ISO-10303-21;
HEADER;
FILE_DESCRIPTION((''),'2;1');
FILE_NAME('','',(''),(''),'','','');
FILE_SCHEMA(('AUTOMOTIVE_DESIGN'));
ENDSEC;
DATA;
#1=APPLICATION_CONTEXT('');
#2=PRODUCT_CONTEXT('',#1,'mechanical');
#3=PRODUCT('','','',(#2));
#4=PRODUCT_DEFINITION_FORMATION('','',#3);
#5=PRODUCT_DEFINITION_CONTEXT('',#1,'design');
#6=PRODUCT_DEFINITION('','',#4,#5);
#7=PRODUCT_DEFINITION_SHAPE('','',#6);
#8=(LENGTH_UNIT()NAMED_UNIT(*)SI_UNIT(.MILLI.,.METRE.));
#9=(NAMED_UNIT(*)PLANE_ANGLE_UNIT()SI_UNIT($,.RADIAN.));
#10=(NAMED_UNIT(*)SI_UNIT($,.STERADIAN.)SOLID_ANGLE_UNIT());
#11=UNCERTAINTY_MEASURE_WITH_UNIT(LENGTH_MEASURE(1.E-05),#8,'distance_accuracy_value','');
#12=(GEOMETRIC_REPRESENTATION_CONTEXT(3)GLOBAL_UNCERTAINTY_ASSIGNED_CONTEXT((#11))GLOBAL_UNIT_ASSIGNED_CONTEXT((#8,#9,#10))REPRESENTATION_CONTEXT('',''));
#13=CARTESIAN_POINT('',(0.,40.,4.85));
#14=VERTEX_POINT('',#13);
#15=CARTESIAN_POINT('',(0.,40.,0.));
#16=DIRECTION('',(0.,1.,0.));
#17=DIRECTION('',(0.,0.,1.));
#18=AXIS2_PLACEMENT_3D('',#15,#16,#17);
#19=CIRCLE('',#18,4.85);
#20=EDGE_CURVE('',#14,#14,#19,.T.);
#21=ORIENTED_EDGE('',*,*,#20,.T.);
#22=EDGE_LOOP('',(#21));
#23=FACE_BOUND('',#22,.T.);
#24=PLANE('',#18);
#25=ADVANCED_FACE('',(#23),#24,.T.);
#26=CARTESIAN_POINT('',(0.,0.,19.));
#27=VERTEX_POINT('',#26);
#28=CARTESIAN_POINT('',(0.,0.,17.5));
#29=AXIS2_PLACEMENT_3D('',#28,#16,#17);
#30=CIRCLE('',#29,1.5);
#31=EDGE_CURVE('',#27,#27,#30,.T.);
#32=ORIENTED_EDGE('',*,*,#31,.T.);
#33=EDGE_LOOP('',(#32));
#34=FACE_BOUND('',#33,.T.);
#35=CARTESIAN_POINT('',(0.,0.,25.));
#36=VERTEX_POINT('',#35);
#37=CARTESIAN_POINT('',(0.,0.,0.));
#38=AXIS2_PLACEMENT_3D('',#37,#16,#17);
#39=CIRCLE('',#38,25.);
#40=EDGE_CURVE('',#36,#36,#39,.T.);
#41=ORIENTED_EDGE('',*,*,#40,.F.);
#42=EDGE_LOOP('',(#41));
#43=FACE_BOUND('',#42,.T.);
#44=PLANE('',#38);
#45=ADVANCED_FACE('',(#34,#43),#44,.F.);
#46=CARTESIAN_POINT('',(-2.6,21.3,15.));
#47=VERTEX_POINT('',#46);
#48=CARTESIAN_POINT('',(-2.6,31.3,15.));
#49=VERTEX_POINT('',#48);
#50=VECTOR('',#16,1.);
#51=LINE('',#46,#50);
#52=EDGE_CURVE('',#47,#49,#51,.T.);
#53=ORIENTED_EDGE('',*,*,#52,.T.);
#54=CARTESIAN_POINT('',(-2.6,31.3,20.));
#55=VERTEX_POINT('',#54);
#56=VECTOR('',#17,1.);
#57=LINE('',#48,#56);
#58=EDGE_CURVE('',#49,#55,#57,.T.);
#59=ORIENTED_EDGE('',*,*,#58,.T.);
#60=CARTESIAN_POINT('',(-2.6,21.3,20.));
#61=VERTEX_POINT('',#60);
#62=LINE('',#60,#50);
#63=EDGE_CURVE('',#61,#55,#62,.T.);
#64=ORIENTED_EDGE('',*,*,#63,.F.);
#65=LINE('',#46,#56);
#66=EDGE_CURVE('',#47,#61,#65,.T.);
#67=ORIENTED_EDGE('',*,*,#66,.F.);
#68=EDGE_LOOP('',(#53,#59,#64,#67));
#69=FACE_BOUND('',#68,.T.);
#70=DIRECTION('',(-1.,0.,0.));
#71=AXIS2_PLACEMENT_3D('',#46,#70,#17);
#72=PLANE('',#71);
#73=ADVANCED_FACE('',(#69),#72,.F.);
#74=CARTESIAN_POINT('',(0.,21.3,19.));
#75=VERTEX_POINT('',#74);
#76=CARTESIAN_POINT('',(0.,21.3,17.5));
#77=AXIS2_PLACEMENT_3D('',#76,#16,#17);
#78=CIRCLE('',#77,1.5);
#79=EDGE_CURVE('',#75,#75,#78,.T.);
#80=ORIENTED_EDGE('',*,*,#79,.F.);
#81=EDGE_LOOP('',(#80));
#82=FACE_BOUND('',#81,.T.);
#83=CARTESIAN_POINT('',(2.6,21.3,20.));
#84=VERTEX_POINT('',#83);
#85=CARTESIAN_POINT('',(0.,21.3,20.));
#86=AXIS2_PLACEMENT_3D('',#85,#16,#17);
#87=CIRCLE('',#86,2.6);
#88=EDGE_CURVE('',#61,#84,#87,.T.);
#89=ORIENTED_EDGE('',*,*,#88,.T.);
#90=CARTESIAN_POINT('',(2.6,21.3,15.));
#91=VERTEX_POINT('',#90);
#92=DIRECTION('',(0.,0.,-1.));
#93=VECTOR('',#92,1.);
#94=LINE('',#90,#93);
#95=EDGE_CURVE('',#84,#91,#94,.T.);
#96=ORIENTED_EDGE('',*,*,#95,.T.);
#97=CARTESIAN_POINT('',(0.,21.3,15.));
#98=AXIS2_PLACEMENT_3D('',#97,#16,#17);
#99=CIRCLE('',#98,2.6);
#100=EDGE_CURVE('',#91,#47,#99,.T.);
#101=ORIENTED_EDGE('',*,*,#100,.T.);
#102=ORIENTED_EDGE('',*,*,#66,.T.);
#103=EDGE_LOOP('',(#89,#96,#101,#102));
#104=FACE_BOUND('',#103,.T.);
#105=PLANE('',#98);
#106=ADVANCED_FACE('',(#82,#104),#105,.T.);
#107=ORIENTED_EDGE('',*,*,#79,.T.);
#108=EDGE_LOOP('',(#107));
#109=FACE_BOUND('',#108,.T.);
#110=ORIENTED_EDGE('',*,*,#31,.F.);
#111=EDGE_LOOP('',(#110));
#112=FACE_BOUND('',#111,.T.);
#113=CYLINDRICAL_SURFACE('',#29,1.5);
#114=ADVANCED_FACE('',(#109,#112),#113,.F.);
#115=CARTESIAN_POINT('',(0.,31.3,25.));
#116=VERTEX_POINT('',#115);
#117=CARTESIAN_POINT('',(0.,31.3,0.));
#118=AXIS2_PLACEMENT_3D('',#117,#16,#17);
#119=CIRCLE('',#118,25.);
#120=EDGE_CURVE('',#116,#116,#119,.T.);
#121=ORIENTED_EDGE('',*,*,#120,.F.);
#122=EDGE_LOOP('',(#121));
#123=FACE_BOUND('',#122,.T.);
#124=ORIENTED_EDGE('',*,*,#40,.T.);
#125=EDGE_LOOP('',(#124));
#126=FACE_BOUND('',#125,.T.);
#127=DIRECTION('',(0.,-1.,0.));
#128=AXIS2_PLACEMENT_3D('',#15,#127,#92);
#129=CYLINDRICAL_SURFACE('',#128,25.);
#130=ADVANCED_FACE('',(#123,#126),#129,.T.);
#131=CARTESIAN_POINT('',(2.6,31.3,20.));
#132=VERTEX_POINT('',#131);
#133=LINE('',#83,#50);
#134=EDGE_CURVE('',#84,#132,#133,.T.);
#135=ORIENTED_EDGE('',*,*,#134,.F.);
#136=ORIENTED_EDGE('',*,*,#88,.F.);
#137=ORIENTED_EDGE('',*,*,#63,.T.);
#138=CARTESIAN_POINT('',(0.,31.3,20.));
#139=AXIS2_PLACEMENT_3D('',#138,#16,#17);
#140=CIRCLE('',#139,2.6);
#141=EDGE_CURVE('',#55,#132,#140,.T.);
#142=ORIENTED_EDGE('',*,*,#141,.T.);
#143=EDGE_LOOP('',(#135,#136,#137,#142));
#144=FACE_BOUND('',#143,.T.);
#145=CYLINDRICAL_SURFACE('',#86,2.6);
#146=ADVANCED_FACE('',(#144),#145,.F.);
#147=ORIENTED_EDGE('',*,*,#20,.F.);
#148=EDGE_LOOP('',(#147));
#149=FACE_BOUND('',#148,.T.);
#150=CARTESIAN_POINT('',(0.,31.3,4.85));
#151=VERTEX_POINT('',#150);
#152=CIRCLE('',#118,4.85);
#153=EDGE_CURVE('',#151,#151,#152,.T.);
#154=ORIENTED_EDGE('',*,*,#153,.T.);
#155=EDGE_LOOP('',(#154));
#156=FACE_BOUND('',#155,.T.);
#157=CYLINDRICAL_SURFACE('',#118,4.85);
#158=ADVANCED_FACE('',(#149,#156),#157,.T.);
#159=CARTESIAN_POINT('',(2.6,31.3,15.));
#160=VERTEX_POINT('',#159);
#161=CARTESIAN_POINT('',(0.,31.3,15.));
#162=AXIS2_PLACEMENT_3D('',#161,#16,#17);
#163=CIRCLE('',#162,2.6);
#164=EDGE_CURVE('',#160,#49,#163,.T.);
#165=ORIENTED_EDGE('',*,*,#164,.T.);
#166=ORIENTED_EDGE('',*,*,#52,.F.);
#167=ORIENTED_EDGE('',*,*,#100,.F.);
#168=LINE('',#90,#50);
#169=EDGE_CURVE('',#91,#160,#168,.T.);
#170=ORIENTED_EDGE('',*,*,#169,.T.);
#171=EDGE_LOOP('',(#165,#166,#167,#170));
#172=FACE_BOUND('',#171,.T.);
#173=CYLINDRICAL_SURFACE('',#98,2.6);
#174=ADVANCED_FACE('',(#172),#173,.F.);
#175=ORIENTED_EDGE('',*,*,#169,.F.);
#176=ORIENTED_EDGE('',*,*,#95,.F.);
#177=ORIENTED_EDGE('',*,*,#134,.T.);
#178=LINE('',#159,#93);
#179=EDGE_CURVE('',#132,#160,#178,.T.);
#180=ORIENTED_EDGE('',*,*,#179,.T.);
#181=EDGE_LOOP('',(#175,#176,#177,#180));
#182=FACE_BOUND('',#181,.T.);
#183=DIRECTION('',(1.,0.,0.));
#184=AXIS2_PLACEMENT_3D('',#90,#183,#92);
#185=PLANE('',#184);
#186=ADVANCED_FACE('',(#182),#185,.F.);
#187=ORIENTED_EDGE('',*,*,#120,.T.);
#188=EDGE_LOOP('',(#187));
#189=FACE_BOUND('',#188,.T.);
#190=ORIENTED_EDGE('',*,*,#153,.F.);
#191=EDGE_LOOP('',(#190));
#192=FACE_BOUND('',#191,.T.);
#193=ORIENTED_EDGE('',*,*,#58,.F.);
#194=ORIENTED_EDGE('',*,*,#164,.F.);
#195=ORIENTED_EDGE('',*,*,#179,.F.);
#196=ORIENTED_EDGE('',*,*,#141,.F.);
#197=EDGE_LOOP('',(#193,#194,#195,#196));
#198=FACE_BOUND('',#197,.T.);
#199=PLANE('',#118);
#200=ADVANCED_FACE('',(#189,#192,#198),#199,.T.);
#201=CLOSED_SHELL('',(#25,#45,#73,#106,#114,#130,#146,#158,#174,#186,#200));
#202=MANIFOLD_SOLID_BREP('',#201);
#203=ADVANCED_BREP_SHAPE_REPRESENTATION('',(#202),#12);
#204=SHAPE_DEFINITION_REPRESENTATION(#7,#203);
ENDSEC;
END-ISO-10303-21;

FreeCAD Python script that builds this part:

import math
import FreeCAD as App
import Part
import Sketcher

V = App.Vector

doc = App.newDocument("Part")
params = doc.addObject("Spreadsheet::Sheet", "Params")
for row, (alias, value) in enumerate([
    ("sketch1_diameter", "50 mm"),
    ("pad1_length", "40 mm"),
    ("sketch2_diameter", "50 mm"),
    ("sketch2_diameter2", "9.7 mm"),
    ("pocket1_length", "8.7 mm"),
    ("sketch3_radius", "2.6 mm"),
    ("sketch3_height", "5 mm"),
    ("pocket2_length", "10 mm"),
    ("sketch4_diameter", "3 mm"),
], start=1):
    params.set(f"A{row}", alias)
    params.set(f"B{row}", "=" + value)
    params.setAlias(f"B{row}", alias)

body = doc.addObject("PartDesign::Body", "Body")

sketch1 = body.newObject("Sketcher::SketchObject", "Sketch")
sketch1.AttachmentSupport = (doc.getObject("XZ_Plane"), [""])
sketch1.MapMode = "FlatFace"
sketch1.addGeometry(Part.Circle(V(0, 0, 0), V(0, 0, 1), 25), False)
sketch1.addConstraint([
    Sketcher.Constraint("Coincident", 0, 3, -1, 1),
    Sketcher.Constraint("Diameter", 0, 50.0),
])
sketch1.setExpression("Constraints[1]", "Params.sketch1_diameter")
pad1 = body.newObject("PartDesign::Pad", "Pad")
pad1.Profile = sketch1
pad1.setExpression("Length", "Params.pad1_length")
pad1.Reversed = True

sketch2 = body.newObject("Sketcher::SketchObject", "Sketch001")
sketch2.AttachmentSupport = (doc.getObject("XZ_Plane"), [""])
sketch2.MapMode = "FlatFace"
sketch2.AttachmentOffset = App.Placement(V(0, 0, -31.3), App.Rotation())
sketch2.addGeometry([
    Part.Circle(V(0, 0, 0), V(0, 0, 1), 25),
    Part.Circle(V(0, 0, 0), V(0, 0, 1), 4.85),
], False)
sketch2.addConstraint([
    Sketcher.Constraint("Coincident", 0, 3, -1, 1),
    Sketcher.Constraint("Coincident", 1, 3, -1, 1),
    Sketcher.Constraint("Diameter", 0, 50.0),
    Sketcher.Constraint("Diameter", 1, 9.7),
])
sketch2.setExpression("Constraints[2]", "Params.sketch2_diameter")
sketch2.setExpression("Constraints[3]", "Params.sketch2_diameter2")
pocket1 = body.newObject("PartDesign::Pocket", "Pocket")
pocket1.Profile = sketch2
pocket1.setExpression("Length", "Params.pocket1_length")

sketch3 = body.newObject("Sketcher::SketchObject", "Sketch002")
sketch3.AttachmentSupport = (doc.getObject("XZ_Plane"), [""])
sketch3.MapMode = "FlatFace"
sketch3.AttachmentOffset = App.Placement(V(0, 0, -31.3), App.Rotation())
sketch3.addGeometry([
    Part.LineSegment(V(-2.6, 15, 0), V(-2.6, 20, 0)),
    Part.ArcOfCircle(Part.Circle(V(0, 20, 0), V(0, 0, 1), 2.6), math.radians(0), math.radians(180)),
    Part.LineSegment(V(2.6, 20, 0), V(2.6, 15, 0)),
    Part.ArcOfCircle(Part.Circle(V(0, 15, 0), V(0, 0, 1), 2.6), math.radians(180), math.radians(360)),
], False)
sketch3.addConstraint([
    Sketcher.Constraint("Tangent", 0, 2, 1, 2),
    Sketcher.Constraint("Tangent", 1, 1, 2, 1),
    Sketcher.Constraint("Tangent", 2, 2, 3, 2),
    Sketcher.Constraint("Tangent", 3, 1, 0, 1),
    Sketcher.Constraint("Vertical", 0),
    Sketcher.Constraint("Vertical", 2),
    Sketcher.Constraint("PointOnObject", 1, 3, -2),
    Sketcher.Constraint("Radius", 1, 2.6),
    Sketcher.Constraint("DistanceY", 0, 1, 0, 2, 5.0),
    Sketcher.Constraint("DistanceY", -1, 1, 1, 3, 20.0),
])
sketch3.setExpression("Constraints[7]", "Params.sketch3_radius")
sketch3.setExpression("Constraints[8]", "Params.sketch3_height")
pocket2 = body.newObject("PartDesign::Pocket", "Pocket001")
pocket2.Profile = sketch3
pocket2.setExpression("Length", "Params.pocket2_length")
pocket2.Reversed = True

sketch4 = body.newObject("Sketcher::SketchObject", "Sketch003")
sketch4.AttachmentSupport = (doc.getObject("XZ_Plane"), [""])
sketch4.MapMode = "FlatFace"
sketch4.AttachmentOffset = App.Placement(V(0, 0, -21.3), App.Rotation())
sketch4.addGeometry(Part.Circle(V(0, 17.5, 0), V(0, 0, 1), 1.5), False)
sketch4.addConstraint([
    Sketcher.Constraint("PointOnObject", 0, 3, -2),
    Sketcher.Constraint("Diameter", 0, 3.0),
    Sketcher.Constraint("DistanceY", -1, 1, 0, 3, 17.5),
])
sketch4.setExpression("Constraints[1]", "Params.sketch4_diameter")
pocket3 = body.newObject("PartDesign::Pocket", "Pocket002")
pocket3.Profile = sketch4
pocket3.Type = "ThroughAll"
pocket3.Reversed = True

doc.recompute()
